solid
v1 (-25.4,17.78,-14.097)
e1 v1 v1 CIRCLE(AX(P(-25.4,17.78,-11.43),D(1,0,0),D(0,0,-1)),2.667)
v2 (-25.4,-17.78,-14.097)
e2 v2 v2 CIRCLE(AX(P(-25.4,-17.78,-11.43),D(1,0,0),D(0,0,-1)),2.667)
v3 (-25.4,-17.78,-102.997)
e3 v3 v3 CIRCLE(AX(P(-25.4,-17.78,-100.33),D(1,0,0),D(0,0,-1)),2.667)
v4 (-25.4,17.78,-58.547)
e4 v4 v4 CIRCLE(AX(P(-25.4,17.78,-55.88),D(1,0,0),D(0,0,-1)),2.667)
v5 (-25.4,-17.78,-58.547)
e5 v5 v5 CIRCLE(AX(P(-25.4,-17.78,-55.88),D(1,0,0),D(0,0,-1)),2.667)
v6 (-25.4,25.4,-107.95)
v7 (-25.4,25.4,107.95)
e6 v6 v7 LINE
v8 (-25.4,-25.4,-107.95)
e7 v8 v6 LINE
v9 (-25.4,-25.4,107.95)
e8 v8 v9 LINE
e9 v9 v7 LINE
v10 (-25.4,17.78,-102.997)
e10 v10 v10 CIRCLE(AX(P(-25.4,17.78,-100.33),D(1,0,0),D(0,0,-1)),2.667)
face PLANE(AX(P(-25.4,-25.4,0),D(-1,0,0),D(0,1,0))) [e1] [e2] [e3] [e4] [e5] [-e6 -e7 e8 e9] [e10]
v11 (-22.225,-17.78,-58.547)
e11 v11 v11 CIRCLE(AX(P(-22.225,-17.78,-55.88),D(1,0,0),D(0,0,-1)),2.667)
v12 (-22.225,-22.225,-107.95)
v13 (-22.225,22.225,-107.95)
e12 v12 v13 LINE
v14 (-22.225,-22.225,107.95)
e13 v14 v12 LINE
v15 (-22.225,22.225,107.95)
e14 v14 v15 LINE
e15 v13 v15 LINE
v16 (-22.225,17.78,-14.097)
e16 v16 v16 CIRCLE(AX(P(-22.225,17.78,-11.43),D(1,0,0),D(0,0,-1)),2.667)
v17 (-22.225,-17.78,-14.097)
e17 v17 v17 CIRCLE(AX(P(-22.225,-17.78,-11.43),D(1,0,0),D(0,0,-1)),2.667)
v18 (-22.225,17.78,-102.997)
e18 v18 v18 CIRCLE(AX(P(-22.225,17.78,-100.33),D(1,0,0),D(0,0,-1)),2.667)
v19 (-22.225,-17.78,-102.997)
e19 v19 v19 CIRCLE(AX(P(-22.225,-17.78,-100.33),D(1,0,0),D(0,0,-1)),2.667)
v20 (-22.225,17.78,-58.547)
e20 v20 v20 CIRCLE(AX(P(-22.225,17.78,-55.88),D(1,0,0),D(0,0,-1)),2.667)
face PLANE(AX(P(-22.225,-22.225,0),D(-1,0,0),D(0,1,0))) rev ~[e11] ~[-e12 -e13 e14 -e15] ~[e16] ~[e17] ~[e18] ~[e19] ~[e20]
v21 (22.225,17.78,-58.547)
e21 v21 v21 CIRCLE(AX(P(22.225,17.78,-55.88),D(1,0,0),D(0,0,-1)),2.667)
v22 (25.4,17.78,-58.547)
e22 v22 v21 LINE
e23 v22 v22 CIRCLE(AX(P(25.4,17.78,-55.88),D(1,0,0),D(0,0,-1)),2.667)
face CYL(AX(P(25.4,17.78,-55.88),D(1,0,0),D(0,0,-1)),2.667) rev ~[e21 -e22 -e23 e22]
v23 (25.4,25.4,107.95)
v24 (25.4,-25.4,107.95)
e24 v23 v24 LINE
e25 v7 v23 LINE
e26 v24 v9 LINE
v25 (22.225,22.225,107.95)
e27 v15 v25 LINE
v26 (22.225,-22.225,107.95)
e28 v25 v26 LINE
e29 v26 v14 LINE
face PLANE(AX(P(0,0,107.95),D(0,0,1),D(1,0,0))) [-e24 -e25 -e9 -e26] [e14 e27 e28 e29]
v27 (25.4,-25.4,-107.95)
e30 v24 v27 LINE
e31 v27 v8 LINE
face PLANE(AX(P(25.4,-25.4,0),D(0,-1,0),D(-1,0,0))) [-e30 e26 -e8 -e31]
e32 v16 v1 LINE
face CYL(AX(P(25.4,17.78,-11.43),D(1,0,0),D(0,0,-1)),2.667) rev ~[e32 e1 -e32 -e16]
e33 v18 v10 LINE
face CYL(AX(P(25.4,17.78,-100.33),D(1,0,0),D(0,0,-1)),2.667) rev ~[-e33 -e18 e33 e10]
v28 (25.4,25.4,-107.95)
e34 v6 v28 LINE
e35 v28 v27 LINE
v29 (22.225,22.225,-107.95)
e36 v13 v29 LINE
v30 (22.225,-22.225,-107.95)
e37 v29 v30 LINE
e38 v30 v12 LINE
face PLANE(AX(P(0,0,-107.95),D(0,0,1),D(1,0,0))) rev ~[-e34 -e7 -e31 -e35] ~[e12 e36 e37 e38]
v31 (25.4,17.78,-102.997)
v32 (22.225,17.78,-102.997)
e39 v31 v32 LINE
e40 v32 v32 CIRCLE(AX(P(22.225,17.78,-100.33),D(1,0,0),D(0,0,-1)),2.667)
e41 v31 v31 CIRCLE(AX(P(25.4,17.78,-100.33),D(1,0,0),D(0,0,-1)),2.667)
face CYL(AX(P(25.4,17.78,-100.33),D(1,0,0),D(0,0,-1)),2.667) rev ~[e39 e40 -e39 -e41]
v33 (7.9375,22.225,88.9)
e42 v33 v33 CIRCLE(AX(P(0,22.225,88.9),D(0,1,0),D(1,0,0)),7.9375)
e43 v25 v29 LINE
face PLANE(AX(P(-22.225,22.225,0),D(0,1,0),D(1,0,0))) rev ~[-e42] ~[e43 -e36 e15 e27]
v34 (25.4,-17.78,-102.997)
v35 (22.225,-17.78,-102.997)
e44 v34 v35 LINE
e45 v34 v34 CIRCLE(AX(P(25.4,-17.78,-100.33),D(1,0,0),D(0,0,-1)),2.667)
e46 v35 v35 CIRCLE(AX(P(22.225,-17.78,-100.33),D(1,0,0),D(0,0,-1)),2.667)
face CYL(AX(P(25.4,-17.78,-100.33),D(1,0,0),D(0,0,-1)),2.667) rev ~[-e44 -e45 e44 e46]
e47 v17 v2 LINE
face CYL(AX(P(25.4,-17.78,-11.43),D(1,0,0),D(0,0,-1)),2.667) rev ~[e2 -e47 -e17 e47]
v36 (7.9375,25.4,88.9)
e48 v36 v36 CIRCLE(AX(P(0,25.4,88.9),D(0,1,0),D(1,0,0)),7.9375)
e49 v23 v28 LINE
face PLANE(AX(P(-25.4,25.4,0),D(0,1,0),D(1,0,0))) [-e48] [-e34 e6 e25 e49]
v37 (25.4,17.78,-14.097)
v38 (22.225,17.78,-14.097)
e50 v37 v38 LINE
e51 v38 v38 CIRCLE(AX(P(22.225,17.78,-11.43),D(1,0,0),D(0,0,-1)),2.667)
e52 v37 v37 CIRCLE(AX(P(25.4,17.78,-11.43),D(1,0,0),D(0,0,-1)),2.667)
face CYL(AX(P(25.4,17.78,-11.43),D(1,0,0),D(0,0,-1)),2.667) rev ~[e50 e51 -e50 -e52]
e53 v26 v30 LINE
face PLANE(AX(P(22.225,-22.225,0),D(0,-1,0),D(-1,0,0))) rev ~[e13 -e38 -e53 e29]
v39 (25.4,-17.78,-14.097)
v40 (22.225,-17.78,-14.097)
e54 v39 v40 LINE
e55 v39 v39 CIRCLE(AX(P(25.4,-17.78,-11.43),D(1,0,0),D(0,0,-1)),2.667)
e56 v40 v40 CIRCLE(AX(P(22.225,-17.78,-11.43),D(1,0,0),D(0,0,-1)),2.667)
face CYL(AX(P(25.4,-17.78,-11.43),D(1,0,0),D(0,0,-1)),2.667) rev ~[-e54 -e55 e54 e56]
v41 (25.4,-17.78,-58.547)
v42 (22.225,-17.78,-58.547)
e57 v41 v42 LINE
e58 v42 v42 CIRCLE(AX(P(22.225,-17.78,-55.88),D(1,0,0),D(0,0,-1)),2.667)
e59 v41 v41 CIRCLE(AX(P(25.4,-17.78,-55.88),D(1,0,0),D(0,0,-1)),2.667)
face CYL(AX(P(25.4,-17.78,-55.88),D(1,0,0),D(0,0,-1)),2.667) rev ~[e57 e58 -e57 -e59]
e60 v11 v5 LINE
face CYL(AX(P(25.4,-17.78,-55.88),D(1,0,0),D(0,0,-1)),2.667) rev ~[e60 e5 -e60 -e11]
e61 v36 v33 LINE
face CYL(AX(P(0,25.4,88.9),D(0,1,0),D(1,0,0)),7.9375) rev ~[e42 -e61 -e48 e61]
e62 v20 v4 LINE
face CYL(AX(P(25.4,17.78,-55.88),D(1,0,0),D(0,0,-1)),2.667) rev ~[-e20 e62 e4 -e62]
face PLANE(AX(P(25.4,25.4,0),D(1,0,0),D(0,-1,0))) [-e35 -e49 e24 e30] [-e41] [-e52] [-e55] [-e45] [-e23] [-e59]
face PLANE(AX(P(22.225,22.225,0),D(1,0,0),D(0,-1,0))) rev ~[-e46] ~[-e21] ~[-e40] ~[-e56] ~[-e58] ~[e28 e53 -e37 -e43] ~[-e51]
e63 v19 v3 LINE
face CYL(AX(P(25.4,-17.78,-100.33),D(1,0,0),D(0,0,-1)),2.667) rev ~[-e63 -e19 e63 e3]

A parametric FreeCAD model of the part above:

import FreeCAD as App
import Part
import Sketcher

V = App.Vector
Q = App.Units.Quantity

doc = App.newDocument("Part")
body = doc.addObject("PartDesign::Body", "Body")

# Sketch on XY plane
sketch1 = body.newObject("Sketcher::SketchObject", "Sketch")
sketch1.AttachmentSupport = (doc.getObject("XY_Plane"), [""])
sketch1.MapMode = "FlatFace"
sketch1.addGeometry([
    Part.LineSegment(V(25.4, 25.4, 0), V(-25.4, 25.4, 0)),  # 0
    Part.LineSegment(V(-25.4, 25.4, 0), V(-25.4, -25.4, 0)),  # 1
    Part.LineSegment(V(-25.4, -25.4, 0), V(25.4, -25.4, 0)),  # 2
    Part.LineSegment(V(25.4, -25.4, 0), V(25.4, 25.4, 0)),  # 3
    Part.LineSegment(V(-22.225, -22.225, 0), V(-22.225, 22.225, 0)),  # 4
    Part.LineSegment(V(-22.225, 22.225, 0), V(22.225, 22.225, 0)),  # 5
    Part.LineSegment(V(22.225, 22.225, 0), V(22.225, -22.225, 0)),  # 6
    Part.LineSegment(V(22.225, -22.225, 0), V(-22.225, -22.225, 0)),  # 7
], False)
sketch1.addConstraint([
    Sketcher.Constraint("Coincident", 0, 2, 1, 1),
    Sketcher.Constraint("Coincident", 1, 2, 2, 1),
    Sketcher.Constraint("Coincident", 2, 2, 3, 1),
    Sketcher.Constraint("Coincident", 3, 2, 0, 1),
    Sketcher.Constraint("Coincident", 4, 2, 5, 1),
    Sketcher.Constraint("Coincident", 5, 2, 6, 1),
    Sketcher.Constraint("Coincident", 6, 2, 7, 1),
    Sketcher.Constraint("Coincident", 7, 2, 4, 1),
    Sketcher.Constraint("Horizontal", 0),
    Sketcher.Constraint("Vertical", 1),
    Sketcher.Constraint("Horizontal", 2),
    Sketcher.Constraint("Vertical", 3),
    Sketcher.Constraint("Vertical", 4),
    Sketcher.Constraint("Horizontal", 5),
    Sketcher.Constraint("Vertical", 6),
    Sketcher.Constraint("Horizontal", 7),
    Sketcher.Constraint("Symmetric", 0, 2, 2, 2, -1, 1),
    Sketcher.Constraint("Symmetric", 4, 2, 6, 2, -1, 1),
    Sketcher.Constraint("Equal", 2, 1),
    Sketcher.Constraint("Equal", 7, 4),
    Sketcher.Constraint("DistanceX", 0, 2, 0, 1, Q("2 in")),
    Sketcher.Constraint("DistanceX", 0, 2, 4, 2, Q("0.125 in")),
])
pad1 = body.newObject("PartDesign::Pad", "Pad")
pad1.Profile = sketch1
pad1.Length = Q("8.5 in")
pad1.Midplane = True

# Sketch on YZ plane
sketch2 = body.newObject("Sketcher::SketchObject", "Sketch001")
sketch2.AttachmentSupport = (doc.getObject("YZ_Plane"), [""])
sketch2.MapMode = "FlatFace"
sketch2.AttachmentOffset = App.Placement(V(0, 0, 1 * 25.4), App.Rotation())
sketch2.addGeometry([
    Part.Circle(V(17.78, -11.43, 0), V(0, 0, 1), 2.667),  # 0
    Part.Circle(V(-17.78, -11.43, 0), V(0, 0, 1), 2.667),  # 1
    Part.Circle(V(-17.78, -55.88, 0), V(0, 0, 1), 2.667),  # 2
    Part.Circle(V(-17.78, -100.33, 0), V(0, 0, 1), 2.667),  # 3
    Part.Circle(V(17.78, -100.33, 0), V(0, 0, 1), 2.667),  # 4
    Part.Circle(V(17.78, -55.88, 0), V(0, 0, 1), 2.667),  # 5
], False)
sketch2.addConstraint([
    Sketcher.Constraint("Equal", 0, 1),
    Sketcher.Constraint("Equal", 1, 2),
    Sketcher.Constraint("Equal", 2, 3),
    Sketcher.Constraint("Equal", 3, 4),
    Sketcher.Constraint("Equal", 4, 5),
    Sketcher.Constraint("Symmetric", 0, 3, 1, 3, -2),
    Sketcher.Constraint("Symmetric", 3, 3, 4, 3, -2),
    Sketcher.Constraint("Symmetric", 2, 3, 5, 3, -2),
    Sketcher.Constraint("Vertical", 1, 3, 2, 3),
    Sketcher.Constraint("Vertical", 2, 3, 3, 3),
    Sketcher.Constraint("Diameter", 0, Q("0.21 in")),
    Sketcher.Constraint("DistanceX", -1, 1, 0, 3, Q("0.7 in")),
    Sketcher.Constraint("DistanceY", 3, 3, 1, 3, Q("3.5 in")),
    Sketcher.Constraint("DistanceY", 2, 3, -1, 1, Q("2.2 in")),
    Sketcher.Constraint("DistanceY", 0, 3, -1, 1, Q("0.45 in")),
])
pocket1 = body.newObject("PartDesign::Pocket", "Pocket")
pocket1.Profile = sketch2
pocket1.Type = "ThroughAll"

# Sketch on XZ plane
sketch3 = body.newObject("Sketcher::SketchObject", "Sketch002")
sketch3.AttachmentSupport = (doc.getObject("XZ_Plane"), [""])
sketch3.MapMode = "FlatFace"
sketch3.AttachmentOffset = App.Placement(V(0, 0, -1 * 25.4), App.Rotation())
sketch3.addGeometry(Part.Circle(V(0, 88.9, 0), V(0, 0, 1), 7.9375), False)
sketch3.addConstraint([
    Sketcher.Constraint("PointOnObject", 0, 3, -2),
    Sketcher.Constraint("Diameter", 0, Q("0.625 in")),
    Sketcher.Constraint("DistanceY", -1, 1, 0, 3, Q("3.5 in")),
])
pocket2 = body.newObject("PartDesign::Pocket", "Pocket001")
pocket2.Profile = sketch3
pocket2.Type = "UpToFirst"
pocket2.Reversed = True

doc.recompute()
